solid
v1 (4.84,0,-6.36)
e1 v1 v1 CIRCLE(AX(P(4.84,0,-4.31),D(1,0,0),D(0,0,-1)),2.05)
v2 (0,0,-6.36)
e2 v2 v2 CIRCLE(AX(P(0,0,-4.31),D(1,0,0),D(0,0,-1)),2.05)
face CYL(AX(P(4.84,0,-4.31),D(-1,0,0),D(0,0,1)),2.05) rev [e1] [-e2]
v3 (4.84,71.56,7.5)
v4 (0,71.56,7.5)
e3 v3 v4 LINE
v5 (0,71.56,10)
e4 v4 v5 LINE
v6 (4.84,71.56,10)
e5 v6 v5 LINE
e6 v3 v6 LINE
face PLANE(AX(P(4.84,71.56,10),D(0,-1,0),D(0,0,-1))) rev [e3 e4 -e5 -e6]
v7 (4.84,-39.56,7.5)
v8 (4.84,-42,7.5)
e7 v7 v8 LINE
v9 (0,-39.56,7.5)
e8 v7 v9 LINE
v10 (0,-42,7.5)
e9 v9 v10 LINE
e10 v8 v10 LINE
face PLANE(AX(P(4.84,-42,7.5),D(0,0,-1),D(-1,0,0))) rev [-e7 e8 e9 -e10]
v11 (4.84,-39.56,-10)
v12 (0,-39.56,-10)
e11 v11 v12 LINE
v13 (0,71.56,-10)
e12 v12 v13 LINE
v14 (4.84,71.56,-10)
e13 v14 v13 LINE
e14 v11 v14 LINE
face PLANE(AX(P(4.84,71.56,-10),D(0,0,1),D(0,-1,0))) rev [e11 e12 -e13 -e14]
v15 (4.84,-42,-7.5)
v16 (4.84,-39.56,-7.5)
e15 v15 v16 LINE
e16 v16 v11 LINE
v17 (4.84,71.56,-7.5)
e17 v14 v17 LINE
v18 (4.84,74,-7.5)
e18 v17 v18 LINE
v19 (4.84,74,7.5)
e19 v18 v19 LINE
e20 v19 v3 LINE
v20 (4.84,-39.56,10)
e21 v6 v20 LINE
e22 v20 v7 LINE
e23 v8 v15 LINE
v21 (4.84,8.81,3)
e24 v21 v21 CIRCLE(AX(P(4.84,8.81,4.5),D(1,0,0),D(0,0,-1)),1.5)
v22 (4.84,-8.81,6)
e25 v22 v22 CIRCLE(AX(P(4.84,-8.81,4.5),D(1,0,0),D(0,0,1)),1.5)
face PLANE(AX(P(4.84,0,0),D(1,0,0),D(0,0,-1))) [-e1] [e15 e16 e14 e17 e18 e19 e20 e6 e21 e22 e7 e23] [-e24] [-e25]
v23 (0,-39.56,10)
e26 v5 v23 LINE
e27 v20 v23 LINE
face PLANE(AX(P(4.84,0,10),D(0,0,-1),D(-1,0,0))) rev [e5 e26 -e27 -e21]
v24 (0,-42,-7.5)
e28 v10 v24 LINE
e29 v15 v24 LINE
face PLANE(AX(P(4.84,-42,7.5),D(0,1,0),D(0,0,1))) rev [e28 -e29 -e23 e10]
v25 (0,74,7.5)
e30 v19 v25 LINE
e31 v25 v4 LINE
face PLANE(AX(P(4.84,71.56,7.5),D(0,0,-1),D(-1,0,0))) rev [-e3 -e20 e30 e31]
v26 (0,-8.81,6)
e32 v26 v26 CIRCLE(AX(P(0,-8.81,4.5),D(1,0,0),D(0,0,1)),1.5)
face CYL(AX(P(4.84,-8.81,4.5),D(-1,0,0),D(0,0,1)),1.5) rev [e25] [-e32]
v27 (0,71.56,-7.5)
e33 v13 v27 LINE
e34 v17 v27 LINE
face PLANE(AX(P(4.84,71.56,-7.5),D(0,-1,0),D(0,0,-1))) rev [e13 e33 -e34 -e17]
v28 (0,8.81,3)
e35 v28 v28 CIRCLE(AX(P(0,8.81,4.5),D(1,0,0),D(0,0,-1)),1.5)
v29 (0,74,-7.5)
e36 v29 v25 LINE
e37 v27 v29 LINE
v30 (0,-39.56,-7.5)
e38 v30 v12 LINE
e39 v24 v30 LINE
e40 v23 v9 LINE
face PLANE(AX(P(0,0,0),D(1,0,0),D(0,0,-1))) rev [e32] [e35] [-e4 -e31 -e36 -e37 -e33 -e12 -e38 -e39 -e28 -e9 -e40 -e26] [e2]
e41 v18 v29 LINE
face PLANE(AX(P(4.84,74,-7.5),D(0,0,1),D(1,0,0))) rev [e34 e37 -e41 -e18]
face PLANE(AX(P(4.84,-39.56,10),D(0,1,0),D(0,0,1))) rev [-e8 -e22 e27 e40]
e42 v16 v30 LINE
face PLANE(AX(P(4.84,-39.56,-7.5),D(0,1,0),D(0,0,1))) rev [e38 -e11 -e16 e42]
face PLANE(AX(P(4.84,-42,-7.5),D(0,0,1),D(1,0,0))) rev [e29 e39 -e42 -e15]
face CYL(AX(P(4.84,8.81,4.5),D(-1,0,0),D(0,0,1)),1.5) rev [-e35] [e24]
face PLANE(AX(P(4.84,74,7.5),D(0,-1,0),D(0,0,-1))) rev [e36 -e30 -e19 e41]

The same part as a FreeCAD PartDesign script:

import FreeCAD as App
import Part
import Sketcher

V = App.Vector
Q = App.Units.Quantity

doc = App.newDocument("Part")
body = doc.addObject("PartDesign::Body", "Body")

sketch1 = body.newObject("Sketcher::SketchObject", "Sketch")
sketch1.AttachmentSupport = (doc.getObject("YZ_Plane"), [""])
sketch1.MapMode = "FlatFace"
sketch1.addGeometry(Part.LineSegment(V(71.6, 10, 0), V(-39.6, 10, 0)), False)
sketch1.addGeometry(Part.LineSegment(V(-39.6, 10, 0), V(-39.6, 7.5, 0)), False)
sketch1.addGeometry(Part.LineSegment(V(-39.6, 7.5, 0), V(-42, 7.5, 0)), False)
sketch1.addGeometry(Part.LineSegment(V(-42, 7.5, 0), V(-42, -7.5, 0)), False)
sketch1.addGeometry(Part.LineSegment(V(-42, -7.5, 0), V(-39.6, -7.5, 0)), False)
sketch1.addGeometry(Part.LineSegment(V(-39.6, -7.5, 0), V(-39.6, -10, 0)), False)
sketch1.addGeometry(Part.LineSegment(V(-39.6, -10, 0), V(71.6, -10, 0)), False)
sketch1.addGeometry(Part.LineSegment(V(71.6, -10, 0), V(71.6, -7.5, 0)), False)
sketch1.addGeometry(Part.LineSegment(V(71.6, -7.5, 0), V(74, -7.5, 0)), False)
sketch1.addGeometry(Part.LineSegment(V(74, -7.5, 0), V(74, 7.5, 0)), False)
sketch1.addGeometry(Part.LineSegment(V(74, 7.5, 0), V(71.6, 7.5, 0)), False)
sketch1.addGeometry(Part.LineSegment(V(71.6, 7.5, 0), V(71.6, 10, 0)), False)
sketch1.addGeometry(Part.Circle(V(-8.8, 4.5, 0), V(0, 0, 1), 1.5), False)
sketch1.addGeometry(Part.Circle(V(0, -4.3, 0), V(0, 0, 1), 2), False)
sketch1.addGeometry(Part.Circle(V(8.8, 4.5, 0), V(0, 0, 1), 1.5), False)
sketch1.addConstraint(Sketcher.Constraint("Coincident", 0, 2, 1, 1))
sketch1.addConstraint(Sketcher.Constraint("Coincident", 1, 2, 2, 1))
sketch1.addConstraint(Sketcher.Constraint("Coincident", 2, 2, 3, 1))
sketch1.addConstraint(Sketcher.Constraint("Coincident", 3, 2, 4, 1))
sketch1.addConstraint(Sketcher.Constraint("Coincident", 4, 2, 5, 1))
sketch1.addConstraint(Sketcher.Constraint("Coincident", 5, 2, 6, 1))
sketch1.addConstraint(Sketcher.Constraint("Coincident", 6, 2, 7, 1))
sketch1.addConstraint(Sketcher.Constraint("Coincident", 7, 2, 8, 1))
sketch1.addConstraint(Sketcher.Constraint("Coincident", 8, 2, 9, 1))
sketch1.addConstraint(Sketcher.Constraint("Coincident", 9, 2, 10, 1))
sketch1.addConstraint(Sketcher.Constraint("Coincident", 10, 2, 11, 1))
sketch1.addConstraint(Sketcher.Constraint("Coincident", 11, 2, 0, 1))
sketch1.addConstraint(Sketcher.Constraint("Horizontal", 0))
sketch1.addConstraint(Sketcher.Constraint("Vertical", 1))
sketch1.addConstraint(Sketcher.Constraint("Horizontal", 2))
sketch1.addConstraint(Sketcher.Constraint("Vertical", 3))
sketch1.addConstraint(Sketcher.Constraint("Horizontal", 4))
sketch1.addConstraint(Sketcher.Constraint("Vertical", 5))
sketch1.addConstraint(Sketcher.Constraint("Horizontal", 6))
sketch1.addConstraint(Sketcher.Constraint("Vertical", 7))
sketch1.addConstraint(Sketcher.Constraint("Horizontal", 8))
sketch1.addConstraint(Sketcher.Constraint("Vertical", 9))
sketch1.addConstraint(Sketcher.Constraint("Horizontal", 10))
sketch1.addConstraint(Sketcher.Constraint("Vertical", 11))
sketch1.addConstraint(Sketcher.Constraint("Equal", 12, 14))
sketch1.addConstraint(Sketcher.Constraint("Symmetric", 12, 3, 14, 3, -2))
sketch1.addConstraint(Sketcher.Constraint("Symmetric", 1, 2, 4, 2, -1))
sketch1.addConstraint(Sketcher.Constraint("Symmetric", 7, 2, 10, 2, -1))
sketch1.addConstraint(Sketcher.Constraint("PointOnObject", 13, 3, -2))
sketch1.addConstraint(Sketcher.Constraint("Horizontal", 4, 2, 7, 2))
sketch1.addConstraint(Sketcher.Constraint("Equal", 4, 8))
sketch1.addConstraint(Sketcher.Constraint("Equal", 1, 5))
sketch1.addConstraint(Sketcher.Constraint("Diameter", 12, Q("3 mm")))
sketch1.addConstraint(Sketcher.Constraint("Diameter", 13, Q("4.1 mm")))
sketch1.addConstraint(Sketcher.Constraint("DistanceY", 3, 2, 3, 1, Q("15 mm")))
sketch1.addConstraint(Sketcher.Constraint("DistanceY", 1, 2, 1, 1, Q("2.5 mm")))
sketch1.addConstraint(Sketcher.Constraint("DistanceX", 2, 2, -1, 1, Q("42 mm")))
sketch1.addConstraint(Sketcher.Constraint("DistanceX", -1, 1, 8, 2, Q("74 mm")))
sketch1.addConstraint(Sketcher.Constraint("DistanceY", 12, 3, 1, 2, Q("3 mm")))
sketch1.addConstraint(Sketcher.Constraint("DistanceX", 0, 2, 0, 1, Q("111.12 mm")))
sketch1.addConstraint(Sketcher.Constraint("DistanceX", 12, 3, -1, 1, Q("8.81 mm")))
sketch1.addConstraint(Sketcher.Constraint("DistanceY", 13, 3, -1, 1, Q("4.31 mm")))
pad1 = body.newObject("PartDesign::Pad", "Pad")
pad1.Profile = sketch1
pad1.Length = 4.84

doc.recompute()
